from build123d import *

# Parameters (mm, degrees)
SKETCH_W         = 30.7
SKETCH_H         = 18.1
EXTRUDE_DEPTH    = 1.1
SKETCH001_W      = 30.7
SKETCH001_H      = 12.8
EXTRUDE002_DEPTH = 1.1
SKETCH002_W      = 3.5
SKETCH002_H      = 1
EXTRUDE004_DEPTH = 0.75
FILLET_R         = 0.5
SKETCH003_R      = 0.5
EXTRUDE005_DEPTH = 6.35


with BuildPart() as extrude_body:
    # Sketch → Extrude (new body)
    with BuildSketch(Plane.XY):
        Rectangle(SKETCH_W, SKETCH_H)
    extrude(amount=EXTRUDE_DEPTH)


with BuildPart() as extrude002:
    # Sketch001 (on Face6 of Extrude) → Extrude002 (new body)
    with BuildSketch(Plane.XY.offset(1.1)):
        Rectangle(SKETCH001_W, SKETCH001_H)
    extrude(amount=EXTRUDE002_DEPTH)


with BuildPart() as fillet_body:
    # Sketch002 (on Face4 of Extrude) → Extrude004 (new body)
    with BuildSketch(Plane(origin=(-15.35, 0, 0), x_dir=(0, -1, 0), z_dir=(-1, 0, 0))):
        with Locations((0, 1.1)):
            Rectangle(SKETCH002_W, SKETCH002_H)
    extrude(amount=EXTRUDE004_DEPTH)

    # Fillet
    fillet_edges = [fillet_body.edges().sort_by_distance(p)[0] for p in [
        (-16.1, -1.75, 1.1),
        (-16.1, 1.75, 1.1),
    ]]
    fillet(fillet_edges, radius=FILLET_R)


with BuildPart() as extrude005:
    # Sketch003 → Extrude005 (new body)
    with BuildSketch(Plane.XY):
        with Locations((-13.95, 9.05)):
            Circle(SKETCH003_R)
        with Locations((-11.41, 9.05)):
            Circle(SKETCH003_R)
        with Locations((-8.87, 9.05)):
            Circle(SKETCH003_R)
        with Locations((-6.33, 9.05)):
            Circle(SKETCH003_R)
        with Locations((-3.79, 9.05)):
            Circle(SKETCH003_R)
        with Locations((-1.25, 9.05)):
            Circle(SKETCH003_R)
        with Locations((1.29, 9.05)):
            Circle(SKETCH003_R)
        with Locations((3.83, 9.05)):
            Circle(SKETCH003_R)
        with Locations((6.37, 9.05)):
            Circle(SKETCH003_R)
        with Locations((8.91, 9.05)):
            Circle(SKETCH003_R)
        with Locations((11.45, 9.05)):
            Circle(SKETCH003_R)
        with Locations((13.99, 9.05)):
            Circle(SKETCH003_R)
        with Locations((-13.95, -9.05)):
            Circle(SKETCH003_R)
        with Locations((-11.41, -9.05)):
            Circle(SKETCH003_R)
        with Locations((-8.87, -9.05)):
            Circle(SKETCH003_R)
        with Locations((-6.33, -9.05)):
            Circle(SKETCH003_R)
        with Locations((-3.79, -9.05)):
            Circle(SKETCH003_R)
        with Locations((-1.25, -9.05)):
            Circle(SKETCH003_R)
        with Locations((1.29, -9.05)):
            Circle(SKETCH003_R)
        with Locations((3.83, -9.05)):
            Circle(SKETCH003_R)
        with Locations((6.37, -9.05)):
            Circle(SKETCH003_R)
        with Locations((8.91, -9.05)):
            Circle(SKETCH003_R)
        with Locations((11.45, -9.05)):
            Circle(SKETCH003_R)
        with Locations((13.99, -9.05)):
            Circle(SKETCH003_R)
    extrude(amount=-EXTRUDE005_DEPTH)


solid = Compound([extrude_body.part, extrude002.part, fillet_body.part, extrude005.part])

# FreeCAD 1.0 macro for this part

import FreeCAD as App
import Part
import Sketcher
Q = App.Units.Quantity


def edges_at(feature, points):
    """Names of the edges that pass closest to the given points."""
    edges = feature.Shape.Edges
    near = lambda p: min(range(len(edges)), key=lambda i: edges[i].distToShape(Part.Vertex(*p))[0])
    return sorted({f"Edge{near(p) + 1}" for p in points})


def add_polygon(sketch, points):
    """Adds a closed chain of lines whose ends are joined by coincident constraints."""
    first, n = sketch.GeometryCount, len(points)
    for a, b in zip(points, points[1:] + points[:1]):
        sketch.addGeometry(Part.LineSegment(App.Vector(*a, 0), App.Vector(*b, 0)), False)
    for i in range(n):
        sketch.addConstraint(Sketcher.Constraint("Coincident", first + i, 2, first + (i + 1) % n, 1))

doc = App.newDocument("Part")
params = doc.addObject("Spreadsheet::Sheet", "Params")
for row, (alias, value) in enumerate([
    ("sketch1_width", "30.7 mm"),
    ("sketch1_height", "18.1 mm"),
    ("pad1_length", "1.1 mm"),
    ("sketch2_width", "30.7 mm"),
    ("sketch2_height", "12.8 mm"),
    ("pad2_length", "1.1 mm"),
    ("sketch3_height", "1 mm"),
    ("sketch3_width", "3.5 mm"),
    ("pad3_length", "0.75 mm"),
    ("fillet_radius", "0.5 mm"),
    ("sketch4_diameter", "1 mm"),
    ("pad4_length", "6.35 mm"),
], start=1):
    params.set(f"A{row}", alias)
    params.set(f"B{row}", "=" + value)
    params.setAlias(f"B{row}", alias)

body = doc.addObject("PartDesign::Body", "Body")

# Sketch on XY plane
sketch1 = body.newObject("Sketcher::SketchObject", "Sketch")
sketch1.AttachmentSupport = (doc.getObject("XY_Plane"), [""])
sketch1.MapMode = "FlatFace"
add_polygon(sketch1, [(-15, 9), (-15, -9), (15, -9), (15, 9)])  # lines 0-3
sketch1.addConstraint(Sketcher.Constraint("Vertical", 0))
sketch1.addConstraint(Sketcher.Constraint("Horizontal", 1))
sketch1.addConstraint(Sketcher.Constraint("Vertical", 2))
sketch1.addConstraint(Sketcher.Constraint("Horizontal", 3))
sketch1.addConstraint(Sketcher.Constraint("Symmetric", 0, 2, 2, 2, -1, 1))
sketch1.addConstraint(Sketcher.Constraint("DistanceX", 1, 1, 1, 2, Q("30.7 mm")))
sketch1.addConstraint(Sketcher.Constraint("DistanceY", 0, 2, 0, 1, Q("18.1 mm")))
sketch1.setExpression("Constraints[9]", "Params.sketch1_width")
sketch1.setExpression("Constraints[10]", "Params.sketch1_height")
pad1 = body.newObject("PartDesign::Pad", "Pad")
pad1.Profile = sketch1
pad1.setExpression("Length", "Params.pad1_length")
body2 = doc.addObject("PartDesign::Body", "Body001")

# Sketch on XY plane
sketch2 = body2.newObject("Sketcher::SketchObject", "Sketch001")
sketch2.AttachmentSupport = (doc.getObject("XY_Plane001"), [""])
sketch2.MapMode = "FlatFace"
sketch2.AttachmentOffset = App.Placement(App.Vector(0, 0, 1.1), App.Rotation())
add_polygon(sketch2, [(-15, 6), (-15, -6), (15, -6), (15, 6)])  # lines 0-3
sketch2.addConstraint(Sketcher.Constraint("Vertical", 0))
sketch2.addConstraint(Sketcher.Constraint("Horizontal", 1))
sketch2.addConstraint(Sketcher.Constraint("Vertical", 2))
sketch2.addConstraint(Sketcher.Constraint("Horizontal", 3))
sketch2.addConstraint(Sketcher.Constraint("Symmetric", 0, 2, 2, 2, -1, 1))
sketch2.addConstraint(Sketcher.Constraint("DistanceX", 1, 1, 1, 2, Q("30.7 mm")))
sketch2.addConstraint(Sketcher.Constraint("DistanceY", 0, 2, 0, 1, Q("12.8 mm")))
sketch2.setExpression("Constraints[9]", "Params.sketch2_width")
sketch2.setExpression("Constraints[10]", "Params.sketch2_height")
pad2 = body2.newObject("PartDesign::Pad", "Pad001")
pad2.Profile = sketch2
pad2.setExpression("Length", "Params.pad2_length")
body3 = doc.addObject("PartDesign::Body", "Body002")

# Sketch on YZ plane
sketch3 = body3.newObject("Sketcher::SketchObject", "Sketch002")
sketch3.AttachmentSupport = (doc.getObject("YZ_Plane002"), [""])
sketch3.MapMode = "FlatFace"
sketch3.AttachmentOffset = App.Placement(App.Vector(0, 0, -15.35), App.Rotation())
add_polygon(sketch3, [(1.8, 1.6), (1.8, 0.6), (-1.8, 0.6), (-1.8, 1.6)])  # lines 0-3
sketch3.addConstraint(Sketcher.Constraint("Vertical", 0))
sketch3.addConstraint(Sketcher.Constraint("Horizontal", 1))
sketch3.addConstraint(Sketcher.Constraint("Vertical", 2))
sketch3.addConstraint(Sketcher.Constraint("Horizontal", 3))
sketch3.addConstraint(Sketcher.Constraint("DistanceY", 0, 2, 0, 1, Q("1 mm")))
sketch3.addConstraint(Sketcher.Constraint("DistanceX", 1, 2, 1, 1, Q("3.5 mm")))
sketch3.addConstraint(Sketcher.Constraint("DistanceY", -1, 1, 0, 2, Q("0.6 mm")))
sketch3.addConstraint(Sketcher.Constraint("DistanceX", -1, 1, 0, 2, Q("1.75 mm")))
sketch3.setExpression("Constraints[8]", "Params.sketch3_height")
sketch3.setExpression("Constraints[9]", "Params.sketch3_width")
pad3 = body3.newObject("PartDesign::Pad", "Pad002")
pad3.Profile = sketch3
pad3.setExpression("Length", "Params.pad3_length")
pad3.Reversed = True
doc.recompute()

fillet = body3.newObject("PartDesign::Fillet", "Fillet")
fillet.Base = (pad3, edges_at(pad3, [(-16.1, -1.75, 1.1), (-16.1, 1.75, 1.1)]))
fillet.setExpression("Radius", "Params.fillet_radius")
body4 = doc.addObject("PartDesign::Body", "Body003")
body4.AllowCompound = True

# Sketch on XY plane
sketch4 = body4.newObject("Sketcher::SketchObject", "Sketch003")
sketch4.AttachmentSupport = (doc.getObject("XY_Plane003"), [""])
sketch4.MapMode = "FlatFace"
sketch4.addGeometry(Part.Circle(App.Vector(-13.9, 9.1, 0), App.Vector(0, 0, 1), 0.5), False)
sketch4.addGeometry(Part.Circle(App.Vector(-11.4, 9.1, 0), App.Vector(0, 0, 1), 0.5), False)
sketch4.addGeometry(Part.Circle(App.Vector(-8.9, 9.1, 0), App.Vector(0, 0, 1), 0.5), False)
sketch4.addGeometry(Part.Circle(App.Vector(-6.3, 9.1, 0), App.Vector(0, 0, 1), 0.5), False)
sketch4.addGeometry(Part.Circle(App.Vector(-3.8, 9.1, 0), App.Vector(0, 0, 1), 0.5), False)
sketch4.addGeometry(Part.Circle(App.Vector(-1.2, 9.1, 0), App.Vector(0, 0, 1), 0.5), False)
sketch4.addGeometry(Part.Circle(App.Vector(1.3, 9.1, 0), App.Vector(0, 0, 1), 0.5), False)
sketch4.addGeometry(Part.Circle(App.Vector(3.8, 9.1, 0), App.Vector(0, 0, 1), 0.5), False)
sketch4.addGeometry(Part.Circle(App.Vector(6.4, 9.1, 0), App.Vector(0, 0, 1), 0.5), False)
sketch4.addGeometry(Part.Circle(App.Vector(8.9, 9.1, 0), App.Vector(0, 0, 1), 0.5), False)
sketch4.addGeometry(Part.Circle(App.Vector(11.4, 9.1, 0), App.Vector(0, 0, 1), 0.5), False)
sketch4.addGeometry(Part.Circle(App.Vector(14, 9.1, 0), App.Vector(0, 0, 1), 0.5), False)
sketch4.addGeometry(Part.Circle(App.Vector(-13.9, -9.1, 0), App.Vector(0, 0, 1), 0.5), False)
sketch4.addGeometry(Part.Circle(App.Vector(-11.4, -9.1, 0), App.Vector(0, 0, 1), 0.5), False)
sketch4.addGeometry(Part.Circle(App.Vector(-8.9, -9.1, 0), App.Vector(0, 0, 1), 0.5), False)
sketch4.addGeometry(Part.Circle(App.Vector(-6.3, -9.1, 0), App.Vector(0, 0, 1), 0.5), False)
sketch4.addGeometry(Part.Circle(App.Vector(-3.8, -9.1, 0), App.Vector(0, 0, 1), 0.5), False)
sketch4.addGeometry(Part.Circle(App.Vector(-1.2, -9.1, 0), App.Vector(0, 0, 1), 0.5), False)
sketch4.addGeometry(Part.Circle(App.Vector(1.3, -9.1, 0), App.Vector(0, 0, 1), 0.5), False)
sketch4.addGeometry(Part.Circle(App.Vector(3.8, -9.1, 0), App.Vector(0, 0, 1), 0.5), False)
sketch4.addGeometry(Part.Circle(App.Vector(6.4, -9.1, 0), App.Vector(0, 0, 1), 0.5), False)
sketch4.addGeometry(Part.Circle(App.Vector(8.9, -9.1, 0), App.Vector(0, 0, 1), 0.5), False)
sketch4.addGeometry(Part.Circle(App.Vector(11.4, -9.1, 0), App.Vector(0, 0, 1), 0.5), False)
sketch4.addGeometry(Part.Circle(App.Vector(14, -9.1, 0), App.Vector(0, 0, 1), 0.5), False)
sketch4.addConstraint(Sketcher.Constraint("Equal", 0, 1))
sketch4.addConstraint(Sketcher.Constraint("Equal", 1, 2))
sketch4.addConstraint(Sketcher.Constraint("Equal", 2, 3))
sketch4.addConstraint(Sketcher.Constraint("Equal", 3, 4))
sketch4.addConstraint(Sketcher.Constraint("Equal", 4, 5))
sketch4.addConstraint(Sketcher.Constraint("Equal", 5, 6))
sketch4.addConstraint(Sketcher.Constraint("Equal", 6, 7))
sketch4.addConstraint(Sketcher.Constraint("Equal", 7, 8))
sketch4.addConstraint(Sketcher.Constraint("Equal", 8, 9))
sketch4.addConstraint(Sketcher.Constraint("Equal", 9, 10))
sketch4.addConstraint(Sketcher.Constraint("Equal", 10, 11))
sketch4.addConstraint(Sketcher.Constraint("Equal", 11, 12))
sketch4.addConstraint(Sketcher.Constraint("Equal", 12, 13))
sketch4.addConstraint(Sketcher.Constraint("Equal", 13, 14))
sketch4.addConstraint(Sketcher.Constraint("Equal", 14, 15))
sketch4.addConstraint(Sketcher.Constraint("Equal", 15, 16))
sketch4.addConstraint(Sketcher.Constraint("Equal", 16, 17))
sketch4.addConstraint(Sketcher.Constraint("Equal", 17, 18))
sketch4.addConstraint(Sketcher.Constraint("Equal", 18, 19))
sketch4.addConstraint(Sketcher.Constraint("Equal", 19, 20))
sketch4.addConstraint(Sketcher.Constraint("Equal", 20, 21))
sketch4.addConstraint(Sketcher.Constraint("Equal", 21, 22))
sketch4.addConstraint(Sketcher.Constraint("Equal", 22, 23))
sketch4.addConstraint(Sketcher.Constraint("Symmetric", 0, 3, 12, 3, -1))
sketch4.addConstraint(Sketcher.Constraint("Symmetric", 1, 3, 13, 3, -1))
sketch4.addConstraint(Sketcher.Constraint("Symmetric", 2, 3, 14, 3, -1))
sketch4.addConstraint(Sketcher.Constraint("Symmetric", 3, 3, 15, 3, -1))
sketch4.addConstraint(Sketcher.Constraint("Symmetric", 4, 3, 16, 3, -1))
sketch4.addConstraint(Sketcher.Constraint("Symmetric", 5, 3, 17, 3, -1))
sketch4.addConstraint(Sketcher.Constraint("Symmetric", 6, 3, 18, 3, -1))
sketch4.addConstraint(Sketcher.Constraint("Symmetric", 7, 3, 19, 3, -1))
sketch4.addConstraint(Sketcher.Constraint("Symmetric", 8, 3, 20, 3, -1))
sketch4.addConstraint(Sketcher.Constraint("Symmetric", 9, 3, 21, 3, -1))
sketch4.addConstraint(Sketcher.Constraint("Symmetric", 10, 3, 22, 3, -1))
sketch4.addConstraint(Sketcher.Constraint("Symmetric", 11, 3, 23, 3, -1))
sketch4.addConstraint(Sketcher.Constraint("Horizontal", 0, 3, 1, 3))
sketch4.addConstraint(Sketcher.Constraint("Horizontal", 1, 3, 2, 3))
sketch4.addConstraint(Sketcher.Constraint("Horizontal", 2, 3, 3, 3))
sketch4.addConstraint(Sketcher.Constraint("Horizontal", 3, 3, 4, 3))
sketch4.addConstraint(Sketcher.Constraint("Horizontal", 4, 3, 5, 3))
sketch4.addConstraint(Sketcher.Constraint("Horizontal", 5, 3, 6, 3))
sketch4.addConstraint(Sketcher.Constraint("Horizontal", 6, 3, 7, 3))
sketch4.addConstraint(Sketcher.Constraint("Horizontal", 7, 3, 8, 3))
sketch4.addConstraint(Sketcher.Constraint("Horizontal", 8, 3, 9, 3))
sketch4.addConstraint(Sketcher.Constraint("Horizontal", 9, 3, 10, 3))
sketch4.addConstraint(Sketcher.Constraint("Horizontal", 10, 3, 11, 3))
sketch4.addConstraint(Sketcher.Constraint("Diameter", 0, Q("1 mm")))
sketch4.addConstraint(Sketcher.Constraint("DistanceX", 0, 3, 5, 3, Q("12.7 mm")))
sketch4.addConstraint(Sketcher.Constraint("DistanceX", 1, 3, 6, 3, Q("12.7 mm")))
sketch4.addConstraint(Sketcher.Constraint("DistanceX", 2, 3, 7, 3, Q("12.7 mm")))
sketch4.addConstraint(Sketcher.Constraint("DistanceX", 3, 3, 8, 3, Q("12.7 mm")))
sketch4.addConstraint(Sketcher.Constraint("DistanceX", 4, 3, 9, 3, Q("12.7 mm")))
sketch4.addConstraint(Sketcher.Constraint("DistanceX", 5, 3, 10, 3, Q("12.7 mm")))
sketch4.addConstraint(Sketcher.Constraint("DistanceX", 6, 3, 11, 3, Q("12.7 mm")))
sketch4.addConstraint(Sketcher.Constraint("DistanceY", 12, 3, 0, 3, Q("18.1 mm")))
sketch4.addConstraint(Sketcher.Constraint("DistanceX", 0, 3, -1, 1, Q("13.95 mm")))
sketch4.addConstraint(Sketcher.Constraint("DistanceX", 1, 3, -1, 1, Q("11.41 mm")))
sketch4.addConstraint(Sketcher.Constraint("DistanceX", 2, 3, -1, 1, Q("8.87 mm")))
sketch4.addConstraint(Sketcher.Constraint("DistanceX", 3, 3, -1, 1, Q("6.33 mm")))
sketch4.addConstraint(Sketcher.Constraint("DistanceX", 4, 3, -1, 1, Q("3.79 mm")))
sketch4.setExpression("Constraints[46]", "Params.sketch4_diameter")
pad4 = body4.newObject("PartDesign::Pad", "Pad003")
pad4.Profile = sketch4
pad4.setExpression("Length", "Params.pad4_length")
pad4.Reversed = True

doc.recompute()
